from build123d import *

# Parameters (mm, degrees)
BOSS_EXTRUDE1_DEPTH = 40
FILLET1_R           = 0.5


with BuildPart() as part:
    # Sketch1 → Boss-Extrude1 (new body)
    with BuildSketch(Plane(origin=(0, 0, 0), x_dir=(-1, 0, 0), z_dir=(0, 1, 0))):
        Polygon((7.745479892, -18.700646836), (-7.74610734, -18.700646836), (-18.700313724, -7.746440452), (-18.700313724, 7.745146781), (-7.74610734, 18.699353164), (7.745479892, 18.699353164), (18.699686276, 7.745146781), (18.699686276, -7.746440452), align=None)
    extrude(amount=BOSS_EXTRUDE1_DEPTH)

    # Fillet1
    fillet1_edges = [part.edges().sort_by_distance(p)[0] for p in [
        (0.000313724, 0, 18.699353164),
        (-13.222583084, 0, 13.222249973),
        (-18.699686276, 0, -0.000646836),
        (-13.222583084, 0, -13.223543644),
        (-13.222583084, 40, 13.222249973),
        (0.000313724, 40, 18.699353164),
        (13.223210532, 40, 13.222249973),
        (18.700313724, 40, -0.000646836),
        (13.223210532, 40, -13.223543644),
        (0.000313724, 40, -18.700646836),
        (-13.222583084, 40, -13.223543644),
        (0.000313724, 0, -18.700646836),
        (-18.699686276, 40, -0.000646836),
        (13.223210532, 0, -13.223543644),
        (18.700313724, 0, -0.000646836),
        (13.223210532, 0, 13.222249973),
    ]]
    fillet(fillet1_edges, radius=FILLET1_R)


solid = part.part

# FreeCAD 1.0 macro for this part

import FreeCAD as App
import Part
import Sketcher


def edges_at(feature, points):
    """Names of the edges that pass closest to the given points."""
    edges = feature.Shape.Edges
    near = lambda p: min(range(len(edges)), key=lambda i: edges[i].distToShape(Part.Vertex(*p))[0])
    return sorted({f"Edge{near(p) + 1}" for p in points})


def add_polygon(sketch, points):
    """Adds a closed chain of lines whose ends are joined by coincident constraints."""
    first, n = sketch.GeometryCount, len(points)
    for a, b in zip(points, points[1:] + points[:1]):
        sketch.addGeometry(Part.LineSegment(App.Vector(*a, 0), App.Vector(*b, 0)), False)
    for i in range(n):
        sketch.addConstraint(Sketcher.Constraint("Coincident", first + i, 2, first + (i + 1) % n, 1))

doc = App.newDocument("Part")
body = doc.addObject("PartDesign::Body", "Body")

# Sketch on XZ plane
sketch1 = body.newObject("Sketcher::SketchObject", "Sketch")
sketch1.AttachmentSupport = (doc.getObject("XZ_Plane"), [""])
sketch1.MapMode = "FlatFace"
add_polygon(sketch1, [(7.746107, -18.700647), (-7.74548, -18.700647), (-18.699686, -7.74644), (-18.699686, 7.745147), (-7.74548, 18.699353), (7.746107, 18.699353), (18.700314, 7.745147), (18.700314, -7.74644)])  # lines 0-7
sketch1.addConstraint(Sketcher.Constraint("Horizontal", 0))
sketch1.addConstraint(Sketcher.Constraint("Vertical", 2))
sketch1.addConstraint(Sketcher.Constraint("Horizontal", 4))
sketch1.addConstraint(Sketcher.Constraint("Vertical", 6))
sketch1.addConstraint(Sketcher.Constraint("Perpendicular", 1, 3))
sketch1.addConstraint(Sketcher.Constraint("Perpendicular", 3, 5))
sketch1.addConstraint(Sketcher.Constraint("Perpendicular", 5, 7))
sketch1.addConstraint(Sketcher.Constraint("Horizontal", 2, 2, 5, 2))
sketch1.addConstraint(Sketcher.Constraint("Horizontal", 1, 2, 6, 2))
sketch1.addConstraint(Sketcher.Constraint("Vertical", 0, 2, 3, 2))
sketch1.addConstraint(Sketcher.Constraint("Vertical", 4, 2, 7, 2))
sketch1.addConstraint(Sketcher.Constraint("Equal", 4, 2))
sketch1.addConstraint(Sketcher.Constraint("DistanceY", 0, 2, 3, 2, 37.4))
sketch1.addConstraint(Sketcher.Constraint("DistanceX", 0, 2, 0, 1, 15.491587))
sketch1.addConstraint(Sketcher.Constraint("DistanceX", 0, 2, -1, 1, 7.74548))
sketch1.addConstraint(Sketcher.Constraint("DistanceY", 1, 2, -1, 1, 7.74644))
pad1 = body.newObject("PartDesign::Pad", "Pad")
pad1.Profile = sketch1
pad1.Length = 40
pad1.Reversed = True
doc.recompute()

fillet = body.newObject("PartDesign::Fillet", "Fillet")
fillet.Base = (pad1, edges_at(pad1, [
    (0, 0, 18.699),
    (-13.223, 0, 13.222),
    (-18.7, 0, -0.001),
    (-13.223, 0, -13.224),
    (-13.223, 40, 13.222),
    (0, 40, 18.699),
    (13.223, 40, 13.222),
    (18.7, 40, -0.001),
    (13.223, 40, -13.224),
    (0, 40, -18.701),
    (-13.223, 40, -13.224),
    (0, 0, -18.701),
    (-18.7, 40, -0.001),
    (13.223, 0, -13.224),
    (18.7, 0, -0.001),
    (13.223, 0, 13.222),
]))
fillet.Radius = 0.5

doc.recompute()
